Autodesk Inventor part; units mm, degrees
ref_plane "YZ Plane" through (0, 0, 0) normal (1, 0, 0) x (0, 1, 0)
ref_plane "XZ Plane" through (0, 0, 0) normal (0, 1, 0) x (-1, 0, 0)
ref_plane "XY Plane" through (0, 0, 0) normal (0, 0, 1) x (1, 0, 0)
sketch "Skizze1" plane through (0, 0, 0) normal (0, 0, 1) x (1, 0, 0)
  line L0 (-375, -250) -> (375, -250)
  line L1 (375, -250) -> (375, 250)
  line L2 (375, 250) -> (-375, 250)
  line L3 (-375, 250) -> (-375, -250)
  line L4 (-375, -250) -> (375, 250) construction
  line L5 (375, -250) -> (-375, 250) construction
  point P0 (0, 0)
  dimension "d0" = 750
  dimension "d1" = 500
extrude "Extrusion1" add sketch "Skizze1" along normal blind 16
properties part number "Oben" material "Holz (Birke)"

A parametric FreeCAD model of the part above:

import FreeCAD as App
import Part
import Sketcher
Q = App.Units.Quantity

doc = App.newDocument("Part")
params = doc.addObject("Spreadsheet::Sheet", "Params")
for row, (alias, value) in enumerate([
    ("sketch1_width", "750 mm"),
    ("sketch1_height", "500 mm"),
    ("pad1_length", "16 mm"),
], start=1):
    params.set(f"A{row}", alias)
    params.set(f"B{row}", "=" + value)
    params.setAlias(f"B{row}", alias)

body = doc.addObject("PartDesign::Body", "Body")

# Sketch on XY plane
sketch1 = body.newObject("Sketcher::SketchObject", "Sketch")
sketch1.AttachmentSupport = (doc.getObject("XY_Plane"), [""])
sketch1.MapMode = "FlatFace"
sketch1.addGeometry([
    Part.LineSegment(App.Vector(-375, 250, 0), App.Vector(-375, -250, 0)),
    Part.LineSegment(App.Vector(-375, -250, 0), App.Vector(375, -250, 0)),
    Part.LineSegment(App.Vector(375, -250, 0), App.Vector(375, 250, 0)),
    Part.LineSegment(App.Vector(375, 250, 0), App.Vector(-375, 250, 0)),
], False)
sketch1.addConstraint([
    Sketcher.Constraint("Coincident", 0, 2, 1, 1),
    Sketcher.Constraint("Coincident", 1, 2, 2, 1),
    Sketcher.Constraint("Coincident", 2, 2, 3, 1),
    Sketcher.Constraint("Coincident", 3, 2, 0, 1),
    Sketcher.Constraint("Vertical", 0),
    Sketcher.Constraint("Horizontal", 1),
    Sketcher.Constraint("Vertical", 2),
    Sketcher.Constraint("Horizontal", 3),
    Sketcher.Constraint("Symmetric", 0, 2, 2, 2, -1, 1),
    Sketcher.Constraint("DistanceX", 1, 1, 1, 2, Q("750 mm")),
    Sketcher.Constraint("DistanceY", 0, 2, 0, 1, Q("500 mm")),
])
sketch1.setExpression("Constraints[9]", "Params.sketch1_width")
sketch1.setExpression("Constraints[10]", "Params.sketch1_height")
pad1 = body.newObject("PartDesign::Pad", "Pad")
pad1.Profile = sketch1
pad1.setExpression("Length", "Params.pad1_length")

doc.recompute()
